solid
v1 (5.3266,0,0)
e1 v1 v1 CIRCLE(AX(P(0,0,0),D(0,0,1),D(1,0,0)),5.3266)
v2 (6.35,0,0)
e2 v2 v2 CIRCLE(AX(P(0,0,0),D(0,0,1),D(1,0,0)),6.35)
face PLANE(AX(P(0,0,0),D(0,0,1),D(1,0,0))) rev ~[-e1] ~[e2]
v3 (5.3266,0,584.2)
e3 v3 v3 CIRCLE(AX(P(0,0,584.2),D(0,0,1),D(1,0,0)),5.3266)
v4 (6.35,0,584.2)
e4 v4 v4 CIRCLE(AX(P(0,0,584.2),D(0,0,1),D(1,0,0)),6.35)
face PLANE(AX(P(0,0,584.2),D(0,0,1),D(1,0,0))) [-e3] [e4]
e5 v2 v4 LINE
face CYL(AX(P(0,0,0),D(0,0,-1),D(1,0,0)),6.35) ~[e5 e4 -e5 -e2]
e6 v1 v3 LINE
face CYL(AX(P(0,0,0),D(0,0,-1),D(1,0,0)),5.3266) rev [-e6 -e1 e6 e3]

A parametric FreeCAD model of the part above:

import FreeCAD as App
import Part
import Sketcher

V = App.Vector
Q = App.Units.Quantity

doc = App.newDocument("Part")
body = doc.addObject("PartDesign::Body", "Body")

# Sketch on XY plane
sketch1 = body.newObject("Sketcher::SketchObject", "Sketch")
sketch1.AttachmentSupport = (doc.getObject("XY_Plane"), [""])
sketch1.MapMode = "FlatFace"
sketch1.addGeometry(Part.Circle(V(0, 0, 0), V(0, 0, 1), 6), False)
sketch1.addGeometry(Part.Circle(V(0, 0, 0), V(0, 0, 1), 5), False)
sketch1.addConstraint(Sketcher.Constraint("Coincident", 0, 3, -1, 1))
sketch1.addConstraint(Sketcher.Constraint("Coincident", 1, 3, -1, 1))
sketch1.addConstraint(Sketcher.Constraint("Diameter", 0, Q("0.5 in")))
sketch1.addConstraint(Sketcher.Constraint("Diameter", 1, 10.6532))
pad1 = body.newObject("PartDesign::Pad", "Pad")
pad1.Profile = sketch1
pad1.Length = Q("23 in")

doc.recompute()
